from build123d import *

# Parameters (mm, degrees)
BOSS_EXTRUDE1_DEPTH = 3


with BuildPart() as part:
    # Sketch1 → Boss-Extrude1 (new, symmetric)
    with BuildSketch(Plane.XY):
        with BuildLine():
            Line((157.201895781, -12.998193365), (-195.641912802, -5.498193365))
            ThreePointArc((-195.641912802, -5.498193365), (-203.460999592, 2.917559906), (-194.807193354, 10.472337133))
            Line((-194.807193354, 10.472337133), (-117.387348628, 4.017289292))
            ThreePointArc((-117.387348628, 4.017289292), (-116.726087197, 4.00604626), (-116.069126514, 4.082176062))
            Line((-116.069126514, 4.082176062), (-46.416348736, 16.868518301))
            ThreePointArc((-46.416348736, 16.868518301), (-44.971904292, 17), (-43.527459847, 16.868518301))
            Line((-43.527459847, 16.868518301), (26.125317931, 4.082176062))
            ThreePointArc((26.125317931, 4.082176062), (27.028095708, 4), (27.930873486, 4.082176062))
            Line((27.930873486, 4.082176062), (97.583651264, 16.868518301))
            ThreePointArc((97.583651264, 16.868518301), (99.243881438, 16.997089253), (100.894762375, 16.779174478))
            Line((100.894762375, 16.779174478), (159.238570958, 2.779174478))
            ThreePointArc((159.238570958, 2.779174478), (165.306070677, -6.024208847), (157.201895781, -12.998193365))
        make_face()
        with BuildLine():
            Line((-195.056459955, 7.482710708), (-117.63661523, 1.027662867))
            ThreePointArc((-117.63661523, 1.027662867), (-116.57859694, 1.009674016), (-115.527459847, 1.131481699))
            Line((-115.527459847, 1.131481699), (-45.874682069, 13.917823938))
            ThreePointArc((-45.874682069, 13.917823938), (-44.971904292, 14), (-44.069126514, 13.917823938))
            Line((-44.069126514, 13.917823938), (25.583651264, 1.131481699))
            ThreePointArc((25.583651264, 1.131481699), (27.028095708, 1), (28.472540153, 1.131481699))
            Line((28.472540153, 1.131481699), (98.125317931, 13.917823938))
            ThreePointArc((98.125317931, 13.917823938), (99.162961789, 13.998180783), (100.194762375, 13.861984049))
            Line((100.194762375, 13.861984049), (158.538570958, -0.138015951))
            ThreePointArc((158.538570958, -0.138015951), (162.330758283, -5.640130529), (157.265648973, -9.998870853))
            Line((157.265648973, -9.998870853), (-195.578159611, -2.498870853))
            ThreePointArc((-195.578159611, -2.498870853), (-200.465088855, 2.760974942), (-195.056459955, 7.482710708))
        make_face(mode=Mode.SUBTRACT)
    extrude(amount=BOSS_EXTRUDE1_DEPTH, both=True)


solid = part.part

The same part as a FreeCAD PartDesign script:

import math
import FreeCAD as App
import Part
import Sketcher
from FreeCAD import Vector

doc = App.newDocument("Part")
params = doc.addObject("Spreadsheet::Sheet", "Params")
for row, (alias, value) in enumerate([
    ("sketch1_radius", "8 mm"),
    ("sketch1_radius2", "5 mm"),
    ("sketch1_length", "60 mm"),
    ("pad1_length", "6 mm"),
], start=1):
    params.set(f"A{row}", alias)
    params.set(f"B{row}", "=" + value)
    params.setAlias(f"B{row}", alias)

body = doc.addObject("PartDesign::Body", "Body")

# Sketch on XY plane
sketch1 = body.newObject("Sketcher::SketchObject", "Sketch")
sketch1.AttachmentSupport = (doc.getObject("XY_Plane"), [""])
sketch1.MapMode = "FlatFace"
sketch1.addGeometry([
    Part.LineSegment(Vector(-195.6, -5.5, 0), Vector(157.2, -13, 0)),  # 0
    Part.ArcOfCircle(Part.Circle(Vector(157.4, -5, 0), Vector(0, 0, 1), 8), math.radians(-91), math.radians(77)),  # 1
    Part.LineSegment(Vector(159.2, 2.8, 0), Vector(100.9, 16.8, 0)),  # 2
    Part.ArcOfCircle(Part.Circle(Vector(99, 9, 0), Vector(0, 0, 1), 8), math.radians(77), math.radians(100)),  # 3
    Part.LineSegment(Vector(97.6, 16.9, 0), Vector(27.9, 4.1, 0)),  # 4
    Part.ArcOfCircle(Part.Circle(Vector(27, 9, 0), Vector(0, 0, 1), 5), math.radians(-100), math.radians(-80)),  # 5
    Part.LineSegment(Vector(26.1, 4.1, 0), Vector(-43.5, 16.9, 0)),  # 6
    Part.ArcOfCircle(Part.Circle(Vector(-45, 9, 0), Vector(0, 0, 1), 8), math.radians(80), math.radians(100)),  # 7
    Part.LineSegment(Vector(-46.4, 16.9, 0), Vector(-116.1, 4.1, 0)),  # 8
    Part.ArcOfCircle(Part.Circle(Vector(-117, 9, 0), Vector(0, 0, 1), 5), math.radians(-94.77), math.radians(-79.6)),  # 9
    Part.LineSegment(Vector(-117.4, 4, 0), Vector(-194.8, 10.5, 0)),  # 10
    Part.ArcOfCircle(Part.Circle(Vector(-195.5, 2.5, 0), Vector(0, 0, 1), 8), math.radians(85), math.radians(269)),  # 11
    Part.LineSegment(Vector(-195.1, 7.5, 0), Vector(-117.6, 1, 0)),  # 12
    Part.ArcOfCircle(Part.Circle(Vector(-117, 9, 0), Vector(0, 0, 1), 8), math.radians(-94.77), math.radians(-79.6)),  # 13
    Part.LineSegment(Vector(-115.5, 1.1, 0), Vector(-45.9, 13.9, 0)),  # 14
    Part.ArcOfCircle(Part.Circle(Vector(-45, 9, 0), Vector(0, 0, 1), 5), math.radians(80), math.radians(100)),  # 15
    Part.LineSegment(Vector(-44.1, 13.9, 0), Vector(25.6, 1.1, 0)),  # 16
    Part.ArcOfCircle(Part.Circle(Vector(27, 9, 0), Vector(0, 0, 1), 8), math.radians(-100), math.radians(-80)),  # 17
    Part.LineSegment(Vector(28.5, 1.1, 0), Vector(98.1, 13.9, 0)),  # 18
    Part.ArcOfCircle(Part.Circle(Vector(99, 9, 0), Vector(0, 0, 1), 5), math.radians(77), math.radians(100)),  # 19
    Part.LineSegment(Vector(100.2, 13.9, 0), Vector(158.5, -0.1, 0)),  # 20
    Part.ArcOfCircle(Part.Circle(Vector(157.4, -5, 0), Vector(0, 0, 1), 5), math.radians(-91), math.radians(77)),  # 21
    Part.LineSegment(Vector(157.3, -10, 0), Vector(-195.6, -2.5, 0)),  # 22
    Part.ArcOfCircle(Part.Circle(Vector(-195.5, 2.5, 0), Vector(0, 0, 1), 5), math.radians(85), math.radians(269)),  # 23
], False)
sketch1.addConstraint([
    Sketcher.Constraint("Tangent", 0, 2, 1, 1),
    Sketcher.Constraint("Tangent", 1, 2, 2, 1),
    Sketcher.Constraint("Tangent", 2, 2, 3, 1),
    Sketcher.Constraint("Tangent", 3, 2, 4, 1),
    Sketcher.Constraint("Tangent", 4, 2, 5, 2),
    Sketcher.Constraint("Tangent", 5, 1, 6, 1),
    Sketcher.Constraint("Tangent", 6, 2, 7, 1),
    Sketcher.Constraint("Tangent", 7, 2, 8, 1),
    Sketcher.Constraint("Tangent", 8, 2, 9, 2),
    Sketcher.Constraint("Tangent", 9, 1, 10, 1),
    Sketcher.Constraint("Tangent", 10, 2, 11, 1),
    Sketcher.Constraint("Tangent", 11, 2, 0, 1),
    Sketcher.Constraint("Tangent", 12, 2, 13, 1),
    Sketcher.Constraint("Tangent", 13, 2, 14, 1),
    Sketcher.Constraint("Tangent", 14, 2, 15, 2),
    Sketcher.Constraint("Tangent", 15, 1, 16, 1),
    Sketcher.Constraint("Tangent", 16, 2, 17, 1),
    Sketcher.Constraint("Tangent", 17, 2, 18, 1),
    Sketcher.Constraint("Tangent", 18, 2, 19, 2),
    Sketcher.Constraint("Tangent", 19, 1, 20, 1),
    Sketcher.Constraint("Tangent", 20, 2, 21, 2),
    Sketcher.Constraint("Tangent", 21, 1, 22, 1),
    Sketcher.Constraint("Tangent", 22, 2, 23, 2),
    Sketcher.Constraint("Tangent", 23, 1, 12, 1),
    Sketcher.Constraint("Coincident", 13, 3, 9, 3),
    Sketcher.Constraint("Coincident", 15, 3, 7, 3),
    Sketcher.Constraint("Coincident", 17, 3, 5, 3),
    Sketcher.Constraint("Coincident", 19, 3, 3, 3),
    Sketcher.Constraint("Coincident", 21, 3, 1, 3),
    Sketcher.Constraint("Coincident", 23, 3, 11, 3),
    Sketcher.Constraint("Equal", 1, 3),
    Sketcher.Constraint("Equal", 3, 7),
    Sketcher.Constraint("Equal", 5, 9),
    Sketcher.Constraint("Equal", 7, 11),
    Sketcher.Constraint("Equal", 11, 13),
    Sketcher.Constraint("Equal", 9, 15),
    Sketcher.Constraint("Equal", 13, 17),
    Sketcher.Constraint("Equal", 15, 19),
    Sketcher.Constraint("Equal", 19, 21),
    Sketcher.Constraint("Equal", 21, 23),
    Sketcher.Constraint("Parallel", 4, 8),
    Sketcher.Constraint("Horizontal", 3, 3, 5, 3),
    Sketcher.Constraint("Horizontal", 5, 3, 7, 3),
    Sketcher.Constraint("Horizontal", 7, 3, 9, 3),
    Sketcher.Constraint("Equal", 4, 6),
    Sketcher.Constraint("Radius", 1, 8.0),
    Sketcher.Constraint("Radius", 5, 5.0),
    Sketcher.Constraint("Distance", 2, 60.0),
    Sketcher.Constraint("DistanceY", 1, 3, -1, 1, 5.0),
    Sketcher.Constraint("DistanceY", -1, 1, 3, 3, 9.0),
    Sketcher.Constraint("DistanceX", 5, 3, 3, 3, 72.0),
    Sketcher.Constraint("DistanceY", -1, 1, 11, 3, 2.5),
    Sketcher.Constraint("DistanceX", 11, 3, 9, 3, 78.5),
    Sketcher.Constraint("DistanceX", -1, 1, 1, 2, 159.238571),
])
sketch1.setExpression("Constraints[45]", "Params.sketch1_radius")
sketch1.setExpression("Constraints[46]", "Params.sketch1_radius2")
sketch1.setExpression("Constraints[47]", "Params.sketch1_length")
pad1 = body.newObject("PartDesign::Pad", "Pad")
pad1.Profile = sketch1
pad1.setExpression("Length", "Params.pad1_length")
pad1.Midplane = True

doc.recompute()
